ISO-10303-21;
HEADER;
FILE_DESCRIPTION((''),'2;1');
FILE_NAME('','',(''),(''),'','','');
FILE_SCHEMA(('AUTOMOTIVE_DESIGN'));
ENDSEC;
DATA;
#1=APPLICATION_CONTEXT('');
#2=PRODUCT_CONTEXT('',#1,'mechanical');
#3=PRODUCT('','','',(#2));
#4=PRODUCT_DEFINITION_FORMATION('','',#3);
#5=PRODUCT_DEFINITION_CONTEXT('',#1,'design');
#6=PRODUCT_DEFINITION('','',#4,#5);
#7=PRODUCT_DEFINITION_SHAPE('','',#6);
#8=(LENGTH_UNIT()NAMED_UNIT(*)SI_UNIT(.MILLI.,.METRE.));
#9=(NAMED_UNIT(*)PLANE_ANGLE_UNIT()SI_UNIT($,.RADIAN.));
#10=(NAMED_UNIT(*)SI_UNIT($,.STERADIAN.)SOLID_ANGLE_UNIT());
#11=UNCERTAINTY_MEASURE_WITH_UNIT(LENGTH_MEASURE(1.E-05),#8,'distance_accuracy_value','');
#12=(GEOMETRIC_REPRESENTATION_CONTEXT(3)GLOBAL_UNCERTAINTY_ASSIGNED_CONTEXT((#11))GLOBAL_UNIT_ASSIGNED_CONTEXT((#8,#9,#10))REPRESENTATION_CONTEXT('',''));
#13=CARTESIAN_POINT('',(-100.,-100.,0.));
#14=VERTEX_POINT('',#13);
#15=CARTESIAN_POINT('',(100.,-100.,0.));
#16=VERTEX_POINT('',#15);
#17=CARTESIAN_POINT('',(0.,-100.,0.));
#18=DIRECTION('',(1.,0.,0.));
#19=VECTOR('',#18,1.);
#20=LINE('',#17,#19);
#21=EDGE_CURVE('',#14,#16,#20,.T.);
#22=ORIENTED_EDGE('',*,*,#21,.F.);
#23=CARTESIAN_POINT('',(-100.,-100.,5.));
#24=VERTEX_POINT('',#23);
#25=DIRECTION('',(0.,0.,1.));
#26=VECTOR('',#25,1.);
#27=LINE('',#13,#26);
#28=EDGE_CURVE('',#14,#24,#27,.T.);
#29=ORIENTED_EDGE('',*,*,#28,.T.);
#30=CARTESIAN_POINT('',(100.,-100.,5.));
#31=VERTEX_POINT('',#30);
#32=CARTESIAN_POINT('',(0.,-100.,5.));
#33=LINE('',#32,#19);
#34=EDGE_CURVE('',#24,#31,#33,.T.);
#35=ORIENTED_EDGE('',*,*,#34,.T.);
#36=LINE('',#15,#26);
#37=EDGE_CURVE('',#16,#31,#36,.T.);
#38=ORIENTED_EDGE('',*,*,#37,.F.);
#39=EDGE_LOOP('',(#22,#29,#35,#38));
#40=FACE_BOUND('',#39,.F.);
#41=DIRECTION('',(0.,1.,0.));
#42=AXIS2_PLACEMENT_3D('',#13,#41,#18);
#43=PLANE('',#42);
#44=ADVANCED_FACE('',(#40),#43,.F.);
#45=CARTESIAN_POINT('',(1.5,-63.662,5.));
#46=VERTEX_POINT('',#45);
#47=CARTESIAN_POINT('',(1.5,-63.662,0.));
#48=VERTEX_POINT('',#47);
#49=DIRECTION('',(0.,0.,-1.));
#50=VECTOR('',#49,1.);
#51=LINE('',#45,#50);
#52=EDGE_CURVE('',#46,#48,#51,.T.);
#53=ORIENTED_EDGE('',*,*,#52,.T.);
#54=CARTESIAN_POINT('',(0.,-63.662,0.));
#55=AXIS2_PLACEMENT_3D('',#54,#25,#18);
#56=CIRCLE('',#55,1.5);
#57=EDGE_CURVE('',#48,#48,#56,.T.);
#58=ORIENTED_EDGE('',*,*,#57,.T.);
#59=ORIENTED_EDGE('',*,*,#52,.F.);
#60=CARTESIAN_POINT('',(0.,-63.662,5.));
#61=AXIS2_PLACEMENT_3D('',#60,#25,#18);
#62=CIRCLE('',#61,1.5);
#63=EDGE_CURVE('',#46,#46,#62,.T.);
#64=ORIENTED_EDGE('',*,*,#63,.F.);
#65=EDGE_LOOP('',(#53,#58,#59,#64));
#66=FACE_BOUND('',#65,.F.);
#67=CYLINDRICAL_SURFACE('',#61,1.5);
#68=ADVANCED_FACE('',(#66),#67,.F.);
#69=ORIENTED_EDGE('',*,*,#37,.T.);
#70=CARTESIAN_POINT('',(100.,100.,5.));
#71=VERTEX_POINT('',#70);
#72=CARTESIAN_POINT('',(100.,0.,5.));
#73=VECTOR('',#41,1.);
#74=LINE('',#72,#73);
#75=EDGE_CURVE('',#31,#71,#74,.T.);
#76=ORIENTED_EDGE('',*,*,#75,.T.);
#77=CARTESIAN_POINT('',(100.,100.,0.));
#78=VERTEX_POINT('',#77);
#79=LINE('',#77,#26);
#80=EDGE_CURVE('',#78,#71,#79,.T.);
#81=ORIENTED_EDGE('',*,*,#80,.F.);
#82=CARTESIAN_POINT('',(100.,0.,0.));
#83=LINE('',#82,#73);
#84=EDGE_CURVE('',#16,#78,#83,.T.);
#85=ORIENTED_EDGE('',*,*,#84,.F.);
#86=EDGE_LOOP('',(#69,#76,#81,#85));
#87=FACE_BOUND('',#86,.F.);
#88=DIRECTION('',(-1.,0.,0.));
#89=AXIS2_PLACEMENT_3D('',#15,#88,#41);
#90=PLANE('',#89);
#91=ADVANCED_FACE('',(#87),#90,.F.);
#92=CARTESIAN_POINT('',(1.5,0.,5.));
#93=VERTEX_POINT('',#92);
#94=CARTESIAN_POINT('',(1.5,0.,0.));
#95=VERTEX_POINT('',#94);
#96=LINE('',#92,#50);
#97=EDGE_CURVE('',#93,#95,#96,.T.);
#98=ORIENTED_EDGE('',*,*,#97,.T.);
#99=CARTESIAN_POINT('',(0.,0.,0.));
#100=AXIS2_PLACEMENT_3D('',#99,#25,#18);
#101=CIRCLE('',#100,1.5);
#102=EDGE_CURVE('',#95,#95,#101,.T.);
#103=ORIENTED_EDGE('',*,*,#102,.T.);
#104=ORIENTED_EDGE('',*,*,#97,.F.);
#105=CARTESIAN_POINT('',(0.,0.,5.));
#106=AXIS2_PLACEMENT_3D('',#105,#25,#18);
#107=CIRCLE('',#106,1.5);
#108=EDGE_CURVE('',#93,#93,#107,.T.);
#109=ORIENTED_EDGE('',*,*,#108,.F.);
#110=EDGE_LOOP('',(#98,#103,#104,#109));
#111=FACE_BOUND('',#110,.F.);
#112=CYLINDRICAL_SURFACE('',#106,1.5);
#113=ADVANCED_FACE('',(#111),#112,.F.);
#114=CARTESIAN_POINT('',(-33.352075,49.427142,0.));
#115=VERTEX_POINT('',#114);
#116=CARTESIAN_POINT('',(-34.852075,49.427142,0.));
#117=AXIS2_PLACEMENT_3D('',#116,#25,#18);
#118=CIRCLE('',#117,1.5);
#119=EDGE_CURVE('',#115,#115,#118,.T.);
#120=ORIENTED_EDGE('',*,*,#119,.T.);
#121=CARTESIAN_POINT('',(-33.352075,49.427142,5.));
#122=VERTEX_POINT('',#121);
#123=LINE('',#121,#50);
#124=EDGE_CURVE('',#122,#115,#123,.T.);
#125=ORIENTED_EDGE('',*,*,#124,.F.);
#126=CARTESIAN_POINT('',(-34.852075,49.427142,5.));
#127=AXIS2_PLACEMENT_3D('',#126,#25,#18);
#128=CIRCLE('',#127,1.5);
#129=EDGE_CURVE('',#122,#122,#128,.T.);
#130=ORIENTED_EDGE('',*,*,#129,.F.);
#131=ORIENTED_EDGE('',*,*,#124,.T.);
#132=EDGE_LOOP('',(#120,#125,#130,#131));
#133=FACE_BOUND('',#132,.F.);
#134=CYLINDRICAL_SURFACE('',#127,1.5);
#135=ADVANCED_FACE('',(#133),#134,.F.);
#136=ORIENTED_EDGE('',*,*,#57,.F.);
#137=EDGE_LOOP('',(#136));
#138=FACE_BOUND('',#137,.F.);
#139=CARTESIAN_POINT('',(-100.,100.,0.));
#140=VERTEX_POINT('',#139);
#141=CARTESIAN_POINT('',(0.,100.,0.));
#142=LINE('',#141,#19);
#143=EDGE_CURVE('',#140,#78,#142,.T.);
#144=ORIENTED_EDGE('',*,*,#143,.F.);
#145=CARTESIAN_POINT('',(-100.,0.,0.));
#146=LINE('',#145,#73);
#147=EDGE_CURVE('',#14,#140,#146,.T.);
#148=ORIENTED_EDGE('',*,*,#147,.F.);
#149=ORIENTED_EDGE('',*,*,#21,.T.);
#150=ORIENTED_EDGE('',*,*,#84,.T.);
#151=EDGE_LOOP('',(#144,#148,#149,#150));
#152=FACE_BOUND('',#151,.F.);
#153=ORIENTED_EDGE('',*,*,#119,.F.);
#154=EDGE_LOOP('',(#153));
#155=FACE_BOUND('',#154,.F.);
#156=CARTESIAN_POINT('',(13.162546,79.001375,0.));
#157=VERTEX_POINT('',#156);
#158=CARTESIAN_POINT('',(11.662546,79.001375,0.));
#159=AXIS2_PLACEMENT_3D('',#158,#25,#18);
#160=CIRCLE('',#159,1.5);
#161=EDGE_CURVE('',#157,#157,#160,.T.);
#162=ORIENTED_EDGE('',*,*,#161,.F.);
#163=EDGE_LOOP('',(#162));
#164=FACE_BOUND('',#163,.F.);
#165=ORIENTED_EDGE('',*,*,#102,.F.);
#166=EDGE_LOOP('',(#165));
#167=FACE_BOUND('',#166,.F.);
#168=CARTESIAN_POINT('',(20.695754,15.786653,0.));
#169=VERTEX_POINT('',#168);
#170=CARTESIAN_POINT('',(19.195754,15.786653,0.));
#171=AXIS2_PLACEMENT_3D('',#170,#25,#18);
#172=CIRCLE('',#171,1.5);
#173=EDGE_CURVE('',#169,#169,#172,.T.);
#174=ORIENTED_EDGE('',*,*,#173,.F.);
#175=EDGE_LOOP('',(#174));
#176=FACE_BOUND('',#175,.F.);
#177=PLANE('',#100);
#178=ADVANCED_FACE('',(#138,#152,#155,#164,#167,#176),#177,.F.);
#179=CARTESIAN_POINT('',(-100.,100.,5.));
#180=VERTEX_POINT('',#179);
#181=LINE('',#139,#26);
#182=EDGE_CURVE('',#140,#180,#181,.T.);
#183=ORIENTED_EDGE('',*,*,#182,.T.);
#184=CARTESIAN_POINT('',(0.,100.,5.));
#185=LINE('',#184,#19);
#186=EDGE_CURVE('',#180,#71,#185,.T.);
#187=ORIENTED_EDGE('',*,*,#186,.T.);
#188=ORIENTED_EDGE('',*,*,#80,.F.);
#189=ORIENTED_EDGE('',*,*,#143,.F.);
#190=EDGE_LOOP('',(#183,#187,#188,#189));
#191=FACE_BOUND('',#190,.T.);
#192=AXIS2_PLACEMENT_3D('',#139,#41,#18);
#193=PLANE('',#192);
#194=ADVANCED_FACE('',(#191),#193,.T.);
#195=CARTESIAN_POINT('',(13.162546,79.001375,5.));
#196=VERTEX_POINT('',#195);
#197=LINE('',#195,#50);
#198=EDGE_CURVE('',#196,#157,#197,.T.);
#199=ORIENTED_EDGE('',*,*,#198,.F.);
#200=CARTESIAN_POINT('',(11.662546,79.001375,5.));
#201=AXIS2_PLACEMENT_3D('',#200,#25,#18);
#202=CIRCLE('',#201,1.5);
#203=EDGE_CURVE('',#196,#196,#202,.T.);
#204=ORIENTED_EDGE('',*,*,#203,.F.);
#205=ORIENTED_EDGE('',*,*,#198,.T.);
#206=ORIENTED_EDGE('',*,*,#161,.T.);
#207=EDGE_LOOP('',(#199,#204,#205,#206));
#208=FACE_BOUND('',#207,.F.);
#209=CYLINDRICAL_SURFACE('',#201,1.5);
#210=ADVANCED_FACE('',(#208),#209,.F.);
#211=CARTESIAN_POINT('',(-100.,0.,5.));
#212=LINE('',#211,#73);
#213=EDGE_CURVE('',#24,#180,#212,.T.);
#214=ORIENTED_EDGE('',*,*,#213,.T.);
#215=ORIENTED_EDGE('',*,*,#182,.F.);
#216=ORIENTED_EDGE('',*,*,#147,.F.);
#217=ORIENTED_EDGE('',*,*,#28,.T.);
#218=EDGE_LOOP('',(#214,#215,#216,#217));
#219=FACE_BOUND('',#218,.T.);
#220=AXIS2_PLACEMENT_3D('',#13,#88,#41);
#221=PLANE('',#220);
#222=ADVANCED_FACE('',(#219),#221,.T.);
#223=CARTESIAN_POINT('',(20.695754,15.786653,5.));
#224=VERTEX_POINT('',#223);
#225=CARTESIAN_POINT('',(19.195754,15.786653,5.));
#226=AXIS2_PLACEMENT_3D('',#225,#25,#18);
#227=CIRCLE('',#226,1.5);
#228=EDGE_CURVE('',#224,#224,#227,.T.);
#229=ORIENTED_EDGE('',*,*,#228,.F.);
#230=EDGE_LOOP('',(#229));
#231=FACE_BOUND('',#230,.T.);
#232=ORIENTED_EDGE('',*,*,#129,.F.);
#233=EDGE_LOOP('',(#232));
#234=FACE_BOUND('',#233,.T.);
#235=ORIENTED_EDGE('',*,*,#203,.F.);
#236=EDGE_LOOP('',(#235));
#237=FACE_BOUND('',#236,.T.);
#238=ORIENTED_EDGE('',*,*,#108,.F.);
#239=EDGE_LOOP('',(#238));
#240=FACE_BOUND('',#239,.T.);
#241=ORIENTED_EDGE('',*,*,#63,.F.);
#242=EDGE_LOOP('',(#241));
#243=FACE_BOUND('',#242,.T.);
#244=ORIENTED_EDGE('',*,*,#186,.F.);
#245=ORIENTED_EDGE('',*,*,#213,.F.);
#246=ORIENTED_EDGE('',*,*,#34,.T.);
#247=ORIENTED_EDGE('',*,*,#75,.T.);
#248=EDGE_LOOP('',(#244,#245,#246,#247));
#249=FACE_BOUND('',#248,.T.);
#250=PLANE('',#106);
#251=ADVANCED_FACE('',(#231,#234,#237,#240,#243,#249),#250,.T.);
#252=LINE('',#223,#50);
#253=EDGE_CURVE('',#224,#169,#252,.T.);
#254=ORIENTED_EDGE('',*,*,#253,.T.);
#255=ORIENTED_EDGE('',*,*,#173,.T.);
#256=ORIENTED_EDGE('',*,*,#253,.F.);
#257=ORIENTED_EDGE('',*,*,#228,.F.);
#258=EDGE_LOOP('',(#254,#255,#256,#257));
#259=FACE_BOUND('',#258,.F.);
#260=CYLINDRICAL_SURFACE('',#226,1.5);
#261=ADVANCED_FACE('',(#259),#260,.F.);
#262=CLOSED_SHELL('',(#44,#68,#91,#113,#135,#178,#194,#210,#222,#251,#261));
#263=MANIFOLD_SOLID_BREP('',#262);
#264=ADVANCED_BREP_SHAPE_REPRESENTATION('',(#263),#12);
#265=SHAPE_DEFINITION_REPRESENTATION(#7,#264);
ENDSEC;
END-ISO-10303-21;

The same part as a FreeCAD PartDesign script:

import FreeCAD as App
import Part
import Sketcher
Q = App.Units.Quantity

doc = App.newDocument("Part")
body = doc.addObject("PartDesign::Body", "Body")

# Sketch on XY plane
sketch1 = body.newObject("Sketcher::SketchObject", "Sketch")
sketch1.AttachmentSupport = (doc.getObject("XY_Plane"), [""])
sketch1.MapMode = "FlatFace"
sketch1.addGeometry([
    Part.LineSegment(App.Vector(-100, 100, 0), App.Vector(-100, -100, 0)),
    Part.LineSegment(App.Vector(-100, -100, 0), App.Vector(100, -100, 0)),
    Part.LineSegment(App.Vector(100, -100, 0), App.Vector(100, 100, 0)),
    Part.LineSegment(App.Vector(100, 100, 0), App.Vector(-100, 100, 0)),
], False)
sketch1.addConstraint([
    Sketcher.Constraint("Coincident", 0, 2, 1, 1),
    Sketcher.Constraint("Coincident", 1, 2, 2, 1),
    Sketcher.Constraint("Coincident", 2, 2, 3, 1),
    Sketcher.Constraint("Coincident", 3, 2, 0, 1),
    Sketcher.Constraint("Vertical", 0),
    Sketcher.Constraint("Horizontal", 1),
    Sketcher.Constraint("Vertical", 2),
    Sketcher.Constraint("Horizontal", 3),
    Sketcher.Constraint("Symmetric", 0, 2, 2, 2, -1, 1),
    Sketcher.Constraint("Equal", 3, 0),
    Sketcher.Constraint("DistanceX", 1, 1, 1, 2, Q("200 mm")),
])
pad1 = body.newObject("PartDesign::Pad", "Pad")
pad1.Profile = sketch1
pad1.Length = 5

# Sketch on XY plane
sketch2 = body.newObject("Sketcher::SketchObject", "Sketch001")
sketch2.AttachmentSupport = (doc.getObject("XY_Plane"), [""])
sketch2.MapMode = "FlatFace"
sketch2.AttachmentOffset = App.Placement(App.Vector(0, 0, 5), App.Rotation())
sketch2.addGeometry([
    Part.Circle(App.Vector(0, 0, 0), App.Vector(0, 0, 1), 1.5),  # 0
    Part.Circle(App.Vector(0, -63.662, 0), App.Vector(0, 0, 1), 1.5),  # 1
    Part.Circle(App.Vector(11.662546, 79.001375, 0), App.Vector(0, 0, 1), 1.5),  # 2
    Part.Circle(App.Vector(-34.852075, 49.427142, 0), App.Vector(0, 0, 1), 1.5),  # 3
    Part.Circle(App.Vector(19.195754, 15.786653, 0), App.Vector(0, 0, 1), 1.5),  # 4
], False)
sketch2.addConstraint([
    Sketcher.Constraint("Coincident", 0, 3, -1, 1),
    Sketcher.Constraint("Equal", 0, 1),
    Sketcher.Constraint("Equal", 1, 2),
    Sketcher.Constraint("Equal", 2, 3),
    Sketcher.Constraint("Equal", 3, 4),
    Sketcher.Constraint("PointOnObject", 1, 3, -2),
    Sketcher.Constraint("Diameter", 0, Q("3 mm")),
    Sketcher.Constraint("DistanceY", 1, 3, -1, 1, Q("63.662 mm")),
    Sketcher.Constraint("DistanceX", 3, 3, 2, 3, Q("46.514621 mm")),
    Sketcher.Constraint("DistanceY", 4, 3, 2, 3, Q("63.214722 mm")),
    Sketcher.Constraint("DistanceX", 3, 3, 4, 3, Q("54.047829 mm")),
    Sketcher.Constraint("DistanceY", 4, 3, 3, 3, Q("33.640489 mm")),
    Sketcher.Constraint("DistanceX", -1, 1, 2, 3, Q("11.662546 mm")),
    Sketcher.Constraint("DistanceY", -1, 1, 2, 3, Q("79.001375 mm")),
])
pocket1 = body.newObject("PartDesign::Pocket", "Pocket")
pocket1.Profile = sketch2
pocket1.Type = "ThroughAll"

doc.recompute()
